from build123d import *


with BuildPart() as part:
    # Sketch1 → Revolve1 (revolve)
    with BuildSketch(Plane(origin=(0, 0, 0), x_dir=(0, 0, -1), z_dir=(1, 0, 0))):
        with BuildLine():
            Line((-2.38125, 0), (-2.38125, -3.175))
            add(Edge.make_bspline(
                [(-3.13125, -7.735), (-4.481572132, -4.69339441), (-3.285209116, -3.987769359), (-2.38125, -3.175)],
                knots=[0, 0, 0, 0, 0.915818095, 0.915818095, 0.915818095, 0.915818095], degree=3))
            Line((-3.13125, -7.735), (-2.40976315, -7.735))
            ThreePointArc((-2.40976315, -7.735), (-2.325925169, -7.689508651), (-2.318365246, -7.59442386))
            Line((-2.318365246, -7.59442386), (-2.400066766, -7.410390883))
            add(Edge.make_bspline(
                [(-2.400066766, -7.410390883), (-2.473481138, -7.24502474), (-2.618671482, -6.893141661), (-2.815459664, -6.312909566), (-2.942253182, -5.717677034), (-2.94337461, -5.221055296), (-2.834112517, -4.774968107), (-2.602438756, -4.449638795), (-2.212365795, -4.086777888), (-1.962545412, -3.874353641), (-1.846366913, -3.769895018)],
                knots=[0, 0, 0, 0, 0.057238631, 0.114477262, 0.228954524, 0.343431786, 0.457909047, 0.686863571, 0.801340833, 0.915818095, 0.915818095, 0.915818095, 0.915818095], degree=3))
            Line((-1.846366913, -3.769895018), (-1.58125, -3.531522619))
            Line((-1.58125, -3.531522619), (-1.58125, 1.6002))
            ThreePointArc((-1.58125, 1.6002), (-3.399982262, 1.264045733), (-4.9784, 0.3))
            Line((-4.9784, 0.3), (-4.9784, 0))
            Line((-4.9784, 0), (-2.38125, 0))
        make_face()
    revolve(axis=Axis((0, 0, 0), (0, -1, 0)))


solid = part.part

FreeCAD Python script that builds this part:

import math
import FreeCAD as App
import Part
import Sketcher

V = App.Vector
Q = App.Units.Quantity

doc = App.newDocument("Part")
body = doc.addObject("PartDesign::Body", "Body")

sketch1 = doc.addObject("Sketcher::SketchObject", "Sketch")
body.addObject(sketch1)
sketch1.AttachmentSupport = (doc.YZ_Plane, [""])
sketch1.MapMode = "FlatFace"
sketch1.addGeometry([
    Part.LineSegment(V(0, 2.38125, 0), V(-3.175, 2.38125, 0)),
    Part.BSplineCurve([V(-7.735, 3.13125, 0), V(-4.693394, 4.481572, 0), V(-3.987769, 3.285209, 0), V(-3.175, 2.38125, 0)], [4, 4], [0, 0.915818095], False, 3, [1, 1, 1, 1], False),
    Part.LineSegment(V(-7.735, 3.13125, 0), V(-7.735, 2.409763, 0)),
    Part.ArcOfCircle(Part.Circle(V(-7.635, 2.409763, 0), V(0, 0, 1), 0.1), math.radians(179.999999), math.radians(293.93885)),
    Part.LineSegment(V(-7.594424, 2.318365, 0), V(-7.410391, 2.400067, 0)),
    Part.BSplineCurve([V(-7.410391, 2.400067, 0), V(-7.245025, 2.473481, 0), V(-6.893142, 2.618671, 0), V(-6.31291, 2.81546, 0), V(-5.717677, 2.942253, 0), V(-5.221055, 2.943375, 0), V(-4.774968, 2.834113, 0), V(-4.449639, 2.602439, 0), V(-4.086778, 2.212366, 0), V(-3.874354, 1.962545, 0), V(-3.769895, 1.846367, 0)], [4, 1, 1, 1, 1, 1, 1, 1, 4], [0, 0.057238631, 0.114477262, 0.228954524, 0.343431786, 0.457909047, 0.686863571, 0.801340833, 0.915818095], False, 3, [1, 1, 1, 1, 1, 1, 1, 1, 1, 1, 1], False),
    Part.LineSegment(V(-3.769895, 1.846367, 0), V(-3.531523, 1.58125, 0)),
    Part.LineSegment(V(-3.531523, 1.58125, 0), V(1.6002, 1.58125, 0)),
    Part.ArcOfCircle(Part.Circle(V(-3.48792, 1.58125, 0), V(0, 0, 1), 5.08812), math.radians(0), math.radians(41.886954)),
    Part.LineSegment(V(0.3, 4.9784, 0), V(0, 4.9784, 0)),
    Part.LineSegment(V(0, 4.9784, 0), V(0, 2.38125, 0)),
], False)
sketch1.addConstraint([
    Sketcher.Constraint("Block", 1),
    Sketcher.Constraint("Block", 5),
    Sketcher.Constraint("Coincident", 0, 2, 1, 2),
    Sketcher.Constraint("Coincident", 1, 1, 2, 1),
    Sketcher.Constraint("Tangent", 2, 2, 3, 1),
    Sketcher.Constraint("Tangent", 3, 2, 4, 1),
    Sketcher.Constraint("Coincident", 4, 2, 5, 1),
    Sketcher.Constraint("Coincident", 5, 2, 6, 1),
    Sketcher.Constraint("Coincident", 6, 2, 7, 1),
    Sketcher.Constraint("Coincident", 7, 2, 8, 1),
    Sketcher.Constraint("Coincident", 8, 2, 9, 1),
    Sketcher.Constraint("Coincident", 9, 2, 10, 1),
    Sketcher.Constraint("Coincident", 10, 2, 0, 1),
    Sketcher.Constraint("Horizontal", 0),
    Sketcher.Constraint("Vertical", 2),
    Sketcher.Constraint("Horizontal", 7),
    Sketcher.Constraint("Horizontal", 9),
    Sketcher.Constraint("Vertical", 10),
    Sketcher.Constraint("PointOnObject", 9, 2, -2),
    Sketcher.Constraint("Horizontal", 8, 3, 6, 2),
    Sketcher.Constraint("Radius", 3, Q("0.1 mm")),
    Sketcher.Constraint("DistanceX", 9, 2, 9, 1, Q("0.3 mm")),
    Sketcher.Constraint("DistanceY", 8, 3, 0, 2, Q("0.8 mm")),
    Sketcher.Constraint("Radius", 8, Q("5.08812 mm")),
    Sketcher.Constraint("DistanceY", 10, 2, 10, 1, Q("2.59715 mm")),
    Sketcher.Constraint("DistanceY", 3, 2, 4, 2, Q("0.081702 mm")),
    Sketcher.Constraint("DistanceX", 3, 2, 6, 2, Q("4.062901 mm")),
])
revolution = doc.addObject("PartDesign::Revolution", "Revolution")
body.addObject(revolution)
revolution.Profile = sketch1
revolution.ReferenceAxis = (sketch1, ["H_Axis"])
revolution.Angle = 360

doc.recompute()
